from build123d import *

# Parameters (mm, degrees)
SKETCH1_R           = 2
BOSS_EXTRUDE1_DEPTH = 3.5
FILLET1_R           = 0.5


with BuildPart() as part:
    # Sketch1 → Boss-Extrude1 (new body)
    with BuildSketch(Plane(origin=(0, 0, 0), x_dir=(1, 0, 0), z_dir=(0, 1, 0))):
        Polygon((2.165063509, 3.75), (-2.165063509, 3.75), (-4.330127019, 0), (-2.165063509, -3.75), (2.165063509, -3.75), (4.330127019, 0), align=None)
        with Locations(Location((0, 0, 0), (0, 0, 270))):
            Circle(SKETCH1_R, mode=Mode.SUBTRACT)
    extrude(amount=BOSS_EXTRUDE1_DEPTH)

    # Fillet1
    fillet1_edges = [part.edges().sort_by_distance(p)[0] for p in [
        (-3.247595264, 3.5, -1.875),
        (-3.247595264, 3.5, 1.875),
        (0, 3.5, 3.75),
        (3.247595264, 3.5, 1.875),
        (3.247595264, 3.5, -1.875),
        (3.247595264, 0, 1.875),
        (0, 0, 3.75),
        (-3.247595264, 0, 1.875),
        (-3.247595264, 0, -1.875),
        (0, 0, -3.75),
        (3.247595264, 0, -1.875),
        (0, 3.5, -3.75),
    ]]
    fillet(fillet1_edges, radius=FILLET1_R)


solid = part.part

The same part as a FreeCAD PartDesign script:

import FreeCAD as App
import Part
import Sketcher
Q = App.Units.Quantity


def edges_at(feature, points):
    """Names of the edges that pass closest to the given points."""
    edges = feature.Shape.Edges
    near = lambda p: min(range(len(edges)), key=lambda i: edges[i].distToShape(Part.Vertex(*p))[0])
    return sorted({f"Edge{near(p) + 1}" for p in points})

doc = App.newDocument("Part")
params = doc.addObject("Spreadsheet::Sheet", "Params")
for row, (alias, value) in enumerate([
    ("sketch1_diameter", "4 mm"),
    ("pad1_length", "3.5 mm"),
    ("fillet_radius", "0.5 mm"),
], start=1):
    params.set(f"A{row}", alias)
    params.set(f"B{row}", "=" + value)
    params.setAlias(f"B{row}", alias)

body = doc.addObject("PartDesign::Body", "Body")

# Sketch on XZ plane
sketch1 = body.newObject("Sketcher::SketchObject", "Sketch")
sketch1.AttachmentSupport = (doc.getObject("XZ_Plane"), [""])
sketch1.MapMode = "FlatFace"
sketch1.addGeometry([
    Part.LineSegment(App.Vector(2.2, -3.8, 0), App.Vector(-2.2, -3.8, 0)),  # 0
    Part.LineSegment(App.Vector(-2.2, -3.8, 0), App.Vector(-4.3, 0, 0)),  # 1
    Part.LineSegment(App.Vector(-4.3, 0, 0), App.Vector(-2.2, 3.8, 0)),  # 2
    Part.LineSegment(App.Vector(-2.2, 3.8, 0), App.Vector(2.2, 3.8, 0)),  # 3
    Part.LineSegment(App.Vector(2.2, 3.8, 0), App.Vector(4.3, 0, 0)),  # 4
    Part.LineSegment(App.Vector(4.3, 0, 0), App.Vector(2.2, -3.8, 0)),  # 5
    Part.Circle(App.Vector(0, 0, 0), App.Vector(0, 0, 1), 2),  # 6
], False)
sketch1.addConstraint([
    Sketcher.Constraint("Coincident", 0, 2, 1, 1),
    Sketcher.Constraint("Coincident", 1, 2, 2, 1),
    Sketcher.Constraint("Coincident", 2, 2, 3, 1),
    Sketcher.Constraint("Coincident", 3, 2, 4, 1),
    Sketcher.Constraint("Coincident", 4, 2, 5, 1),
    Sketcher.Constraint("Coincident", 5, 2, 0, 1),
    Sketcher.Constraint("Horizontal", 0),
    Sketcher.Constraint("Horizontal", 3),
    Sketcher.Constraint("Coincident", 6, 3, -1, 1),
    Sketcher.Constraint("Symmetric", 0, 2, 3, 2, -1, 1),
    Sketcher.Constraint("Symmetric", 1, 2, 4, 2, -1, 1),
    Sketcher.Constraint("PointOnObject", 1, 2, -1),
    Sketcher.Constraint("Parallel", 2, 5),
    Sketcher.Constraint("Vertical", 0, 2, 2, 2),
    Sketcher.Constraint("Diameter", 6, Q("4 mm")),
    Sketcher.Constraint("Angle", 1, Q("120 deg")),
    Sketcher.Constraint("DistanceY", 0, 2, 2, 2, Q("7.5 mm")),
    Sketcher.Constraint("DistanceX", 0, 2, 0, 1, Q("4.330127 mm")),
])
sketch1.setExpression("Constraints[14]", "Params.sketch1_diameter")
pad1 = body.newObject("PartDesign::Pad", "Pad")
pad1.Profile = sketch1
pad1.setExpression("Length", "Params.pad1_length")
pad1.Reversed = True
doc.recompute()

fillet = body.newObject("PartDesign::Fillet", "Fillet")
fillet.Base = (pad1, edges_at(pad1, [
    (-3.248, 3.5, -1.875),
    (-3.248, 3.5, 1.875),
    (0, 3.5, 3.75),
    (3.248, 3.5, 1.875),
    (3.248, 3.5, -1.875),
    (3.248, 0, 1.875),
    (0, 0, 3.75),
    (-3.248, 0, 1.875),
    (-3.248, 0, -1.875),
    (0, 0, -3.75),
    (3.248, 0, -1.875),
    (0, 3.5, -3.75),
]))
fillet.setExpression("Radius", "Params.fillet_radius")

doc.recompute()
